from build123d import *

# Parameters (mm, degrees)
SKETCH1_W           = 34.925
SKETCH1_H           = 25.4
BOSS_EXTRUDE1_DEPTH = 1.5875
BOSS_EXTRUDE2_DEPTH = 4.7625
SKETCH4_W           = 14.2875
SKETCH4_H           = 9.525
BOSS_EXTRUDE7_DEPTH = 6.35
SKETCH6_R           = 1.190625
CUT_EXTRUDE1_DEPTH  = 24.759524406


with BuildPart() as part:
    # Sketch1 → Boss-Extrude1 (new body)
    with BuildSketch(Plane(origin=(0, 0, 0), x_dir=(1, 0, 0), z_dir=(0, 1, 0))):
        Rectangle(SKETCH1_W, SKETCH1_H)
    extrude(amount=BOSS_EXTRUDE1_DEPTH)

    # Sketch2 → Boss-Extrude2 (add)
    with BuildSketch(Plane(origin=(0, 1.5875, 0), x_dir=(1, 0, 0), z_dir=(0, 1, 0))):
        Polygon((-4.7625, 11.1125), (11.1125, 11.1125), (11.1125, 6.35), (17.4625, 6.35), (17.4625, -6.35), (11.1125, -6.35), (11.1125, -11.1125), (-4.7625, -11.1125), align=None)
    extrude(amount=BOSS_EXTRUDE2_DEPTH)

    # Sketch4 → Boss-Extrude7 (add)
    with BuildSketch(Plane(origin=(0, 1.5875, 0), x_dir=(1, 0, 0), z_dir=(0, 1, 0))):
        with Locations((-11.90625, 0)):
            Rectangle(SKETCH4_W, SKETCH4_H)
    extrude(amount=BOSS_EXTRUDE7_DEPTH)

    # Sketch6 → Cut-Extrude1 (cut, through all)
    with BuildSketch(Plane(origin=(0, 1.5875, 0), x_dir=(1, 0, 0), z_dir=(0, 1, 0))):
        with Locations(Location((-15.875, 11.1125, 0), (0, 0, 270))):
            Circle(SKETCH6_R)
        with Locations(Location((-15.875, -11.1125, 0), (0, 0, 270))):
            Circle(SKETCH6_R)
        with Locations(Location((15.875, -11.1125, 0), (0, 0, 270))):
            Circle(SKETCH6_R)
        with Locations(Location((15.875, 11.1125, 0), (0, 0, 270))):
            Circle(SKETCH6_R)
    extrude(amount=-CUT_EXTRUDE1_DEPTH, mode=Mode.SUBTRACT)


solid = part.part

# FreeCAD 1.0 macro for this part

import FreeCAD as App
import Part
import Sketcher
Q = App.Units.Quantity


def add_polygon(sketch, points):
    """Adds a closed chain of lines whose ends are joined by coincident constraints."""
    first, n = sketch.GeometryCount, len(points)
    for a, b in zip(points, points[1:] + points[:1]):
        sketch.addGeometry(Part.LineSegment(App.Vector(*a, 0), App.Vector(*b, 0)), False)
    for i in range(n):
        sketch.addConstraint(Sketcher.Constraint("Coincident", first + i, 2, first + (i + 1) % n, 1))

doc = App.newDocument("Part")
body = doc.addObject("PartDesign::Body", "Body")

sketch1 = doc.addObject("Sketcher::SketchObject", "Sketch")
body.addObject(sketch1)
sketch1.AttachmentSupport = (doc.XZ_Plane, [""])
sketch1.MapMode = "FlatFace"
add_polygon(sketch1, [(-17.4625, -12.7), (-17.4625, 12.7), (17.4625, 12.7), (17.4625, -12.7)])
sketch1.addConstraint(Sketcher.Constraint("Vertical", 0))
sketch1.addConstraint(Sketcher.Constraint("Horizontal", 1))
sketch1.addConstraint(Sketcher.Constraint("Vertical", 2))
sketch1.addConstraint(Sketcher.Constraint("Horizontal", 3))
sketch1.addConstraint(Sketcher.Constraint("Symmetric", 0, 2, 2, 2, -1, 1))
sketch1.addConstraint(Sketcher.Constraint("DistanceY", 0, 1, 0, 2, Q("1 in")))
sketch1.addConstraint(Sketcher.Constraint("DistanceX", 1, 1, 1, 2, Q("1.375 in")))
pad1 = doc.addObject("PartDesign::Pad", "Pad")
body.addObject(pad1)
pad1.Profile = sketch1
pad1.Length = Q("0.0625 in")
pad1.Reversed = True

sketch2 = doc.addObject("Sketcher::SketchObject", "Sketch001")
body.addObject(sketch2)
sketch2.AttachmentSupport = (doc.XZ_Plane, [""])
sketch2.MapMode = "FlatFace"
sketch2.AttachmentOffset = App.Placement(App.Vector(0, 0, -0.0625 * 25.4), App.Rotation())
add_polygon(sketch2, [(11.1125, -11.1125), (-4.7625, -11.1125), (-4.7625, 11.1125), (11.1125, 11.1125), (11.1125, 6.35), (17.4625, 6.35), (17.4625, -6.35), (11.1125, -6.35)])
sketch2.addConstraint(Sketcher.Constraint("Horizontal", 0))
sketch2.addConstraint(Sketcher.Constraint("Vertical", 1))
sketch2.addConstraint(Sketcher.Constraint("Horizontal", 2))
sketch2.addConstraint(Sketcher.Constraint("Vertical", 3))
sketch2.addConstraint(Sketcher.Constraint("Horizontal", 4))
sketch2.addConstraint(Sketcher.Constraint("Vertical", 5))
sketch2.addConstraint(Sketcher.Constraint("Horizontal", 6))
sketch2.addConstraint(Sketcher.Constraint("Vertical", 7))
sketch2.addConstraint(Sketcher.Constraint("Symmetric", 3, 2, 6, 2, -1))
sketch2.addConstraint(Sketcher.Constraint("Equal", 3, 7))
sketch2.addConstraint(Sketcher.Constraint("DistanceY", 5, 2, 5, 1, Q("0.5 in")))
sketch2.addConstraint(Sketcher.Constraint("DistanceX", 4, 1, 4, 2, Q("0.25 in")))
sketch2.addConstraint(Sketcher.Constraint("DistanceX", 0, 2, 0, 1, Q("0.625 in")))
sketch2.addConstraint(Sketcher.Constraint("DistanceY", 1, 1, 1, 2, Q("0.875 in")))
sketch2.addConstraint(Sketcher.Constraint("DistanceX", 0, 2, -1, 1, Q("0.1875 in")))
pad2 = doc.addObject("PartDesign::Pad", "Pad001")
body.addObject(pad2)
pad2.Profile = sketch2
pad2.Length = Q("0.1875 in")
pad2.Reversed = True

sketch3 = doc.addObject("Sketcher::SketchObject", "Sketch002")
body.addObject(sketch3)
sketch3.AttachmentSupport = (doc.XZ_Plane, [""])
sketch3.MapMode = "FlatFace"
sketch3.AttachmentOffset = App.Placement(App.Vector(0, 0, -0.0625 * 25.4), App.Rotation())
add_polygon(sketch3, [(-19.05, -4.7625), (-19.05, 4.7625), (-4.7625, 4.7625), (-4.7625, -4.7625)])
sketch3.addConstraint(Sketcher.Constraint("Vertical", 0))
sketch3.addConstraint(Sketcher.Constraint("Horizontal", 1))
sketch3.addConstraint(Sketcher.Constraint("Vertical", 2))
sketch3.addConstraint(Sketcher.Constraint("Horizontal", 3))
sketch3.addConstraint(Sketcher.Constraint("DistanceX", 1, 1, 1, 2, Q("0.5625 in")))
sketch3.addConstraint(Sketcher.Constraint("DistanceY", 0, 1, 0, 2, Q("0.375 in")))
sketch3.addConstraint(Sketcher.Constraint("DistanceX", 0, 2, -1, 1, Q("0.75 in")))
sketch3.addConstraint(Sketcher.Constraint("DistanceY", -1, 1, 0, 2, Q("0.1875 in")))
pad3 = doc.addObject("PartDesign::Pad", "Pad002")
body.addObject(pad3)
pad3.Profile = sketch3
pad3.Length = Q("0.25 in")
pad3.Reversed = True

sketch4 = doc.addObject("Sketcher::SketchObject", "Sketch003")
body.addObject(sketch4)
sketch4.AttachmentSupport = (doc.XZ_Plane, [""])
sketch4.MapMode = "FlatFace"
sketch4.AttachmentOffset = App.Placement(App.Vector(0, 0, -0.0625 * 25.4), App.Rotation())
sketch4.addGeometry(Part.Circle(App.Vector(-15.875, -11.1125, 0), App.Vector(0, 0, 1), 1.190625), False)
sketch4.addGeometry(Part.Circle(App.Vector(-15.875, 11.1125, 0), App.Vector(0, 0, 1), 1.190625), False)
sketch4.addGeometry(Part.Circle(App.Vector(15.875, 11.1125, 0), App.Vector(0, 0, 1), 1.190625), False)
sketch4.addGeometry(Part.Circle(App.Vector(15.875, -11.1125, 0), App.Vector(0, 0, 1), 1.190625), False)
sketch4.addConstraint(Sketcher.Constraint("Equal", 0, 1))
sketch4.addConstraint(Sketcher.Constraint("Equal", 1, 2))
sketch4.addConstraint(Sketcher.Constraint("Equal", 2, 3))
sketch4.addConstraint(Sketcher.Constraint("Symmetric", 0, 3, 2, 3, -1, 1))
sketch4.addConstraint(Sketcher.Constraint("Symmetric", 1, 3, 3, 3, -1, 1))
sketch4.addConstraint(Sketcher.Constraint("Symmetric", 1, 3, 2, 3, -2))
sketch4.addConstraint(Sketcher.Constraint("Diameter", 0, Q("0.09375 in")))
sketch4.addConstraint(Sketcher.Constraint("DistanceX", 1, 3, 2, 3, Q("1.25 in")))
sketch4.addConstraint(Sketcher.Constraint("DistanceY", 0, 3, -1, 1, Q("0.4375 in")))
pocket1 = doc.addObject("PartDesign::Pocket", "Pocket")
body.addObject(pocket1)
pocket1.Profile = sketch4
pocket1.Type = "ThroughAll"
pocket1.Reversed = True

doc.recompute()
